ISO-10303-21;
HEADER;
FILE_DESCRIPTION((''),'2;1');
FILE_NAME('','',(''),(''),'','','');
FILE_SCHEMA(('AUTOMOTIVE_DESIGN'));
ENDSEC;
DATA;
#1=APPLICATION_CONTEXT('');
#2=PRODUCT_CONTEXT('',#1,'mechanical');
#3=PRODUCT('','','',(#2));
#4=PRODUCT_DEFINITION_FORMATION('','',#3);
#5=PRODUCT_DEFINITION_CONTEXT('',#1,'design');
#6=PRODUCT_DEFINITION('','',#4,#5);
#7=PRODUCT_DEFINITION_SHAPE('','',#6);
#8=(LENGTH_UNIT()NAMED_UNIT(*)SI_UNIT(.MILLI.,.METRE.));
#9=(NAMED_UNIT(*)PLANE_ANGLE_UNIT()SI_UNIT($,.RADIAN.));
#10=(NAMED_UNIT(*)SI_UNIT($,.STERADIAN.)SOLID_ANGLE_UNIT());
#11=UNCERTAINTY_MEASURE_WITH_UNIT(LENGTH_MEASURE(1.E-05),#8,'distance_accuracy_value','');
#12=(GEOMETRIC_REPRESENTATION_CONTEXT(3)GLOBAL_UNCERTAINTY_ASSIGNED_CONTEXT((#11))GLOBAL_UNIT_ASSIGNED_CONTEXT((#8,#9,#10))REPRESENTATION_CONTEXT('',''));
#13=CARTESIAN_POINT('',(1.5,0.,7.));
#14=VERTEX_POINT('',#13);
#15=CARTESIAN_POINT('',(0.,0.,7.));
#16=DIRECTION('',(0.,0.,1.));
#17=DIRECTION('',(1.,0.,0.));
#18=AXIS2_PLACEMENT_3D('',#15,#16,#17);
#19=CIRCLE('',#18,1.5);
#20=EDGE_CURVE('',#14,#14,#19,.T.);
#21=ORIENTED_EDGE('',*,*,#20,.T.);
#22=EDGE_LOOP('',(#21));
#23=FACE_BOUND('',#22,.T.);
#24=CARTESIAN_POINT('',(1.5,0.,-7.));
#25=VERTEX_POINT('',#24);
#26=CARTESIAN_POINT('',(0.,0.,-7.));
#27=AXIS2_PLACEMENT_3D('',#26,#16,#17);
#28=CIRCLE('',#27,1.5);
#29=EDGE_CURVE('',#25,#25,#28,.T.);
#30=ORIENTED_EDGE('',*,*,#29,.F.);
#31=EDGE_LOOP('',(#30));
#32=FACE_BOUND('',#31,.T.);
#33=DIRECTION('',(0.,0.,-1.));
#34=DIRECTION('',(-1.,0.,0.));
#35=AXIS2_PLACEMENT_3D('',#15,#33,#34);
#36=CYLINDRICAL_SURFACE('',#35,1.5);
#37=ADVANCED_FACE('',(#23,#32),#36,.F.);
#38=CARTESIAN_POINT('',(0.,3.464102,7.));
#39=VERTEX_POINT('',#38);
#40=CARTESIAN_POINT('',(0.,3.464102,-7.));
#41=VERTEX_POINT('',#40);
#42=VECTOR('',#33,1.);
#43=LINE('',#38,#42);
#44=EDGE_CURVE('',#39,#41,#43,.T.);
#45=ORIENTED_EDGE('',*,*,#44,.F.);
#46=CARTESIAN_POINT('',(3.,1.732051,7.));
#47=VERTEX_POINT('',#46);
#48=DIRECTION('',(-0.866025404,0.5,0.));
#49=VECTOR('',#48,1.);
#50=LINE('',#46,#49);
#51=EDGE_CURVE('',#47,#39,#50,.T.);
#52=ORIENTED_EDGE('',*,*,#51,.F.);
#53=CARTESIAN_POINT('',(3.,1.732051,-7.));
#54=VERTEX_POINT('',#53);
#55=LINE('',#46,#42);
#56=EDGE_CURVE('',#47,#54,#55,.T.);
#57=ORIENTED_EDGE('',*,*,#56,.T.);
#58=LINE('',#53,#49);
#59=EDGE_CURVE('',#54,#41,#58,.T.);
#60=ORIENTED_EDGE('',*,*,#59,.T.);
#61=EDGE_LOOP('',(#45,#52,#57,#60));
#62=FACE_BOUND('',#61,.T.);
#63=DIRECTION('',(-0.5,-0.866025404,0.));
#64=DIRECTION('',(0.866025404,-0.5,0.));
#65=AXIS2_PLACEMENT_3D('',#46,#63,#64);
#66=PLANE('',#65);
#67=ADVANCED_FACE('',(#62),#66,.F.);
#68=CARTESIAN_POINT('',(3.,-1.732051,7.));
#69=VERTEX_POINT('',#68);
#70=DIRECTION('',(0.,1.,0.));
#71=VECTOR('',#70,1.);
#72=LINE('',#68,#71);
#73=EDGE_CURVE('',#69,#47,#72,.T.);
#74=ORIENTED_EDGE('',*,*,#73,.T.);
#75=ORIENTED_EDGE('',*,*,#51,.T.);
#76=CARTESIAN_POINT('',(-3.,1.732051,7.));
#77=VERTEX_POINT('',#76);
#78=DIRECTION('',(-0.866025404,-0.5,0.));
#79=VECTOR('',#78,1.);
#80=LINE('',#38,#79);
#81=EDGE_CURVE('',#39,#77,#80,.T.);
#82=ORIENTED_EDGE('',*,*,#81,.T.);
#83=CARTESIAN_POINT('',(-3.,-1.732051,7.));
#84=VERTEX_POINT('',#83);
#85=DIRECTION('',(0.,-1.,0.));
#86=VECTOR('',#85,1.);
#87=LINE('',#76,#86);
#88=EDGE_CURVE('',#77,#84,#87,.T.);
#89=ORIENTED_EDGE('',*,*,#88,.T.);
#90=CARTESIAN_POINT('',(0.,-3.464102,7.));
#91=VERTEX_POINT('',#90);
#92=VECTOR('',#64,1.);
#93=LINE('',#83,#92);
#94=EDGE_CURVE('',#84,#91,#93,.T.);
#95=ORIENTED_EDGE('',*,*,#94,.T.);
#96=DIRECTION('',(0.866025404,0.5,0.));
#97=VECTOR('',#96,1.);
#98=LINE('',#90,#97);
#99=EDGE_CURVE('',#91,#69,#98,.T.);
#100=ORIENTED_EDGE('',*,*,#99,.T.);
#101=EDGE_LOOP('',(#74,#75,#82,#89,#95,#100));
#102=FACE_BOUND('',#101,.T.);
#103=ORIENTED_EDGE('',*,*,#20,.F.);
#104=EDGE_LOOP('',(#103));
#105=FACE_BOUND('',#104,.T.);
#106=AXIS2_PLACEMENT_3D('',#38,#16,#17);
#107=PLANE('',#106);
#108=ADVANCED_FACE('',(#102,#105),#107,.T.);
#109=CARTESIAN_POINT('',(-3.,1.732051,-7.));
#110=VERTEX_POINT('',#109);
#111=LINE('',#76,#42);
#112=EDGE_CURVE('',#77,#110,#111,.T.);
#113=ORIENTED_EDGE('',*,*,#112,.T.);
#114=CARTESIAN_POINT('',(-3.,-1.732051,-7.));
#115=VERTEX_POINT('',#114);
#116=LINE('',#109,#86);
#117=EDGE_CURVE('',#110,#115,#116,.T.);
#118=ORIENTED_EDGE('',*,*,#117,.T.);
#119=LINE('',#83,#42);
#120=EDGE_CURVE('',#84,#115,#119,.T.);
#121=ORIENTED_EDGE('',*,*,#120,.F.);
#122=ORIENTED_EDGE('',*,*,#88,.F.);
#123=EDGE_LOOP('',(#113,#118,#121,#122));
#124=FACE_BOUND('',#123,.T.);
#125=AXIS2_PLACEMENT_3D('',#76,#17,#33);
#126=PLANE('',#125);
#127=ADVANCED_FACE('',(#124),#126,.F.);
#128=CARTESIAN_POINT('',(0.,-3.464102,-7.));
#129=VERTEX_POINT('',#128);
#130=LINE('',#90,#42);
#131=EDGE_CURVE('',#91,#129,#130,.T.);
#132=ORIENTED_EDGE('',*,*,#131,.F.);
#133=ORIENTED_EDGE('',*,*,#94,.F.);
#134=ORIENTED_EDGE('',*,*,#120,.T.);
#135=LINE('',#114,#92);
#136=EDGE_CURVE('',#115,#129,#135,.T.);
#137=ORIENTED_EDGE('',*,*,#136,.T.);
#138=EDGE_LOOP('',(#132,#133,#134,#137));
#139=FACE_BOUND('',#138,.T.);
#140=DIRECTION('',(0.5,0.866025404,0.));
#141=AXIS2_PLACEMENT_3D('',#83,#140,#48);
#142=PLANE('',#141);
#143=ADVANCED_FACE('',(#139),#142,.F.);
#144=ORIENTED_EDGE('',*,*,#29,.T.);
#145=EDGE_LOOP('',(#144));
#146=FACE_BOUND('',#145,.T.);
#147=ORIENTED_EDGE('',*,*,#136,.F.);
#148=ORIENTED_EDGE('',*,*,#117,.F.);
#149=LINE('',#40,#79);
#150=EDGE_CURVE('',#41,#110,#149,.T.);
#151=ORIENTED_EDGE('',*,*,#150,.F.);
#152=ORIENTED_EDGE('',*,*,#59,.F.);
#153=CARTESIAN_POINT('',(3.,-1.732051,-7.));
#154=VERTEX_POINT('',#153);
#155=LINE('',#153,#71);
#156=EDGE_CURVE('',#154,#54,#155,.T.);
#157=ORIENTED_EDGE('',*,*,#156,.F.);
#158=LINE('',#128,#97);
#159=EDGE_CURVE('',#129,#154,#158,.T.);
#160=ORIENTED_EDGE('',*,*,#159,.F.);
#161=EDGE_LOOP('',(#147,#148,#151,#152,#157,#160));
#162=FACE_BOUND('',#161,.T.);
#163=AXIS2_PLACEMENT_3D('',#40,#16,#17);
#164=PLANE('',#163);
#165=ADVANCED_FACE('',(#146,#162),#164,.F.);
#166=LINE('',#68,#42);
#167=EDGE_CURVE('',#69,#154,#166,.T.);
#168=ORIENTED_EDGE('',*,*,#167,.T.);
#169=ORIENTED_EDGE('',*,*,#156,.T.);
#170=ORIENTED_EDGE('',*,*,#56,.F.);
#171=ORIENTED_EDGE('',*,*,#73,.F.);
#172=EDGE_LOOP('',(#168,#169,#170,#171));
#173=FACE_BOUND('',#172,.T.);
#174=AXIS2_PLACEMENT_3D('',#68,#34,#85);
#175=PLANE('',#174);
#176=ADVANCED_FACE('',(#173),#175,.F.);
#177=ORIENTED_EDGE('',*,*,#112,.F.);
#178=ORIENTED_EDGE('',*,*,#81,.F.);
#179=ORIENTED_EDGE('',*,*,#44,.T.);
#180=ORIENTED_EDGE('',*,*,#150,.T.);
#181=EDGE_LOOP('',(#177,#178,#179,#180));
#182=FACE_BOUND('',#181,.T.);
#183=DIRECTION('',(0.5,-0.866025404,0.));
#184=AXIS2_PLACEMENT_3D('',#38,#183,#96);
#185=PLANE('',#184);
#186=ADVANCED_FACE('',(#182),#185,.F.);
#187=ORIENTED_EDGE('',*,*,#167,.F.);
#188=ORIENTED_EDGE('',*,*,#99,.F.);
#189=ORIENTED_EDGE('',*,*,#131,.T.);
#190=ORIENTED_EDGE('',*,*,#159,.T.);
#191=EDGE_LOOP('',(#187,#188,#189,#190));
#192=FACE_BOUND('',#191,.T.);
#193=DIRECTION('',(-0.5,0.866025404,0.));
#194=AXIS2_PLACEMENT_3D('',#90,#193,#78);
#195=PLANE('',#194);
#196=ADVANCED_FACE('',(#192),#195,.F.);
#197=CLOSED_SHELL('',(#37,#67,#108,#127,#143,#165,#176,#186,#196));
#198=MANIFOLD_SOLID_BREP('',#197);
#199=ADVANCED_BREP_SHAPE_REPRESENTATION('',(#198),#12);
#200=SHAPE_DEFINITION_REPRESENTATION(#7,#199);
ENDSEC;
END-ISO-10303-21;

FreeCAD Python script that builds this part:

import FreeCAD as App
import Part
import Sketcher
Q = App.Units.Quantity


def add_polygon(sketch, points):
    """Adds a closed chain of lines whose ends are joined by coincident constraints."""
    first, n = sketch.GeometryCount, len(points)
    for a, b in zip(points, points[1:] + points[:1]):
        sketch.addGeometry(Part.LineSegment(App.Vector(*a, 0), App.Vector(*b, 0)), False)
    for i in range(n):
        sketch.addConstraint(Sketcher.Constraint("Coincident", first + i, 2, first + (i + 1) % n, 1))

doc = App.newDocument("Part")
body = doc.addObject("PartDesign::Body", "Body")

# Sketch on XY plane
sketch1 = doc.addObject("Sketcher::SketchObject", "Sketch")
body.addObject(sketch1)
sketch1.AttachmentSupport = (doc.XY_Plane, [""])
sketch1.MapMode = "FlatFace"
add_polygon(sketch1, [(0, 3.5), (-3, 1.7), (-3, -1.7), (0, -3.5), (3, -1.7), (3, 1.7)])  # lines 0-5
sketch1.addGeometry(Part.Circle(App.Vector(0, 0, 0), App.Vector(0, 0, 1), 1.5), False)  # 6
sketch1.addConstraint(Sketcher.Constraint("Vertical", 1))
sketch1.addConstraint(Sketcher.Constraint("Vertical", 4))
sketch1.addConstraint(Sketcher.Constraint("Coincident", 6, 3, -1, 1))
sketch1.addConstraint(Sketcher.Constraint("Symmetric", 0, 2, 3, 2, -1, 1))
sketch1.addConstraint(Sketcher.Constraint("Symmetric", 2, 2, 5, 2, -1, 1))
sketch1.addConstraint(Sketcher.Constraint("PointOnObject", 2, 2, -2))
sketch1.addConstraint(Sketcher.Constraint("Parallel", 2, 5))
sketch1.addConstraint(Sketcher.Constraint("Horizontal", 1, 2, 3, 2))
sketch1.addConstraint(Sketcher.Constraint("Diameter", 6, 3.0))
sketch1.addConstraint(Sketcher.Constraint("Angle", 0, Q("-150 deg")))
sketch1.addConstraint(Sketcher.Constraint("DistanceX", 0, 2, -1, 1, 3.0))
sketch1.addConstraint(Sketcher.Constraint("DistanceY", 1, 2, 1, 1, 3.464102))
pad1 = doc.addObject("PartDesign::Pad", "Pad")
body.addObject(pad1)
pad1.Profile = sketch1
pad1.Type = "TwoLengths"
pad1.Length = 7
pad1.Length2 = 7

doc.recompute()
